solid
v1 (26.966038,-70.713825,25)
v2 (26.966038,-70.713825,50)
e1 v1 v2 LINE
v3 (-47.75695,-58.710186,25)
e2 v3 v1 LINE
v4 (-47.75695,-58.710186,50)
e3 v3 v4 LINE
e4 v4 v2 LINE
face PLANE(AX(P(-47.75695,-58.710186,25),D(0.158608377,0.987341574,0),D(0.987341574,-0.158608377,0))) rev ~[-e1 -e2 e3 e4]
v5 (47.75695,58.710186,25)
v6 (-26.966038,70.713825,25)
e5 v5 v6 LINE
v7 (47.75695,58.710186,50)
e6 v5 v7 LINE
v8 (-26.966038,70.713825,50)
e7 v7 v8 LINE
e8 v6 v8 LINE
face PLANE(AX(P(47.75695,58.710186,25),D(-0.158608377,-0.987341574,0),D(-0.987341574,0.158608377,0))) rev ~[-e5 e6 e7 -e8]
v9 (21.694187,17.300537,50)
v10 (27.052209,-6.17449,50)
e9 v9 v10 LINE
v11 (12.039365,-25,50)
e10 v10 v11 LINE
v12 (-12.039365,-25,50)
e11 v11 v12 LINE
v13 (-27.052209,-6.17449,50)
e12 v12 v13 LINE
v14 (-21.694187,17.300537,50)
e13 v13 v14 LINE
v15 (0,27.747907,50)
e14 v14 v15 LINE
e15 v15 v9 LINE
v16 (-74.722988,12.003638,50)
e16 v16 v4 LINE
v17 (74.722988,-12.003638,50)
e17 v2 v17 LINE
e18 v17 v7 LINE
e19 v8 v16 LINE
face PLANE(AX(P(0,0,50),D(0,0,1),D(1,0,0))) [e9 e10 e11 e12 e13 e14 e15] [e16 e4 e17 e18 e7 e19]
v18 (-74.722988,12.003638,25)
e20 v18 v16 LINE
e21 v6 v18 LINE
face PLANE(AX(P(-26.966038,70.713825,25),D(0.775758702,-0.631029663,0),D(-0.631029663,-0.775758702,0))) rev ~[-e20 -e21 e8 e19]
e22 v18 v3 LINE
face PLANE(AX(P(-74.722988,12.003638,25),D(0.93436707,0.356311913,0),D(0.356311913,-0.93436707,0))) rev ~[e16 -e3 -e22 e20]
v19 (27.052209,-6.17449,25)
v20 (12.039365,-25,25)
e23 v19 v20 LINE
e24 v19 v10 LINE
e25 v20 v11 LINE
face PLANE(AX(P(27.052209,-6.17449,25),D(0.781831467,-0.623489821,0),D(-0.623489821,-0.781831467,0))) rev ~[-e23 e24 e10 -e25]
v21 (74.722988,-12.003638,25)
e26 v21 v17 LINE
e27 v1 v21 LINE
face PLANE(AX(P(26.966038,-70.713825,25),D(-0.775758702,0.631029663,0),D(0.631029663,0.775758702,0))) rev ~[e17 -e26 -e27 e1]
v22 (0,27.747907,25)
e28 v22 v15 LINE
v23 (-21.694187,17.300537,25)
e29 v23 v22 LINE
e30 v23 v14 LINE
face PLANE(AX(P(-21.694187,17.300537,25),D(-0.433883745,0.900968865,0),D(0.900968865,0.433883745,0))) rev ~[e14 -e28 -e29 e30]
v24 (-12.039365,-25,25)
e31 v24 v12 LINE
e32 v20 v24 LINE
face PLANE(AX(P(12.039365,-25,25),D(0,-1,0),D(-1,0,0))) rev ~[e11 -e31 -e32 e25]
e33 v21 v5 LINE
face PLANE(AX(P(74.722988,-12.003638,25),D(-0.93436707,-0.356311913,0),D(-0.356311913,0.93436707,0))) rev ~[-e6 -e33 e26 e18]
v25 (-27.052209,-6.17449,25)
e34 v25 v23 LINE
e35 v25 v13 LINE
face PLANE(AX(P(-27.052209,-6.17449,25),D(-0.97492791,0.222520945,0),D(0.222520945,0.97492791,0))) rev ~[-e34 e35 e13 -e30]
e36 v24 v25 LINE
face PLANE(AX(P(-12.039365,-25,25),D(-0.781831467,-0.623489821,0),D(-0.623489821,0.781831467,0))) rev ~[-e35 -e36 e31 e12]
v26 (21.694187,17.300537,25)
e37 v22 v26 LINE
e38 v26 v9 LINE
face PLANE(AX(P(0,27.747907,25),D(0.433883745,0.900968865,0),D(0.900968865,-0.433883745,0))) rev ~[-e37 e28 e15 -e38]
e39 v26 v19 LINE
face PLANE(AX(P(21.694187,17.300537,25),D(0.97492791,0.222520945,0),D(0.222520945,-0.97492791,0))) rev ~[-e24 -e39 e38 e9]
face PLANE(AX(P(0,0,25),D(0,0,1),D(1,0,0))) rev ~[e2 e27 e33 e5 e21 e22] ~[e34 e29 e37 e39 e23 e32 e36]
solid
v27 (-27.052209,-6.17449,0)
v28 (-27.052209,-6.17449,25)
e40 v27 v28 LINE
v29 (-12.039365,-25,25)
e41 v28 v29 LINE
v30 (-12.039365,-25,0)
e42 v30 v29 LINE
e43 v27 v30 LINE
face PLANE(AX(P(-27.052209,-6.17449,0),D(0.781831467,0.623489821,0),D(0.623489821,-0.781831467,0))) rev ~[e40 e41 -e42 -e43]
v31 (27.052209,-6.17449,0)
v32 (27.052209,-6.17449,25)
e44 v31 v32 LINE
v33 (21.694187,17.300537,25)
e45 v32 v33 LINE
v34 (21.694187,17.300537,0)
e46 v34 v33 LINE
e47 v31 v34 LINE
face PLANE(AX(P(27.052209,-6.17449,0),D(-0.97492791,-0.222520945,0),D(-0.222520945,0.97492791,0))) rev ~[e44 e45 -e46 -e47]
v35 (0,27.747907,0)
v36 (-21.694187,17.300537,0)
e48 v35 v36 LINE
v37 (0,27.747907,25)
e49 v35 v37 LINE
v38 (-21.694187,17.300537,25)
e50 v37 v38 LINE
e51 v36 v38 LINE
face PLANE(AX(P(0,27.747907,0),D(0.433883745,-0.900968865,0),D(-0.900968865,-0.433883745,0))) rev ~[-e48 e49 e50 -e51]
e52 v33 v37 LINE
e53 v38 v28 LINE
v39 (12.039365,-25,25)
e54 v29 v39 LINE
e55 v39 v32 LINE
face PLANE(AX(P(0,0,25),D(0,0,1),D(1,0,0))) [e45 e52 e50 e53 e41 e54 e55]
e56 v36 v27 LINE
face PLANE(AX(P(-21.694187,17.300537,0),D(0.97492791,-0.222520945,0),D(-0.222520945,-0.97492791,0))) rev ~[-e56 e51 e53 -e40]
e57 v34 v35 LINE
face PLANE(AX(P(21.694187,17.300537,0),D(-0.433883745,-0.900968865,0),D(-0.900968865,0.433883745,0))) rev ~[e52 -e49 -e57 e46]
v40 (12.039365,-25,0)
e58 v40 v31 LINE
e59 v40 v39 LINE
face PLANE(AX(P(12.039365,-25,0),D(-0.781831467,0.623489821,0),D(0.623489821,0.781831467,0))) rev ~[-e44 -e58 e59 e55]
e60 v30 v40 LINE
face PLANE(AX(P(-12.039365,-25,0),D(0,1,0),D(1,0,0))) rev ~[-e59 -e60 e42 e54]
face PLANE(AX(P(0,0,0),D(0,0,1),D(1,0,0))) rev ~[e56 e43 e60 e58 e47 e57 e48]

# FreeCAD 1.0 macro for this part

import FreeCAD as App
import Part
import Sketcher
from FreeCAD import Vector
Q = App.Units.Quantity

doc = App.newDocument("Part")
body = doc.addObject("PartDesign::Body", "Body")

# Sketch on XY plane
sketch1 = body.newObject("Sketcher::SketchObject", "Sketch")
sketch1.AttachmentSupport = (doc.getObject("XY_Plane"), [""])
sketch1.MapMode = "FlatFace"
sketch1.addGeometry([
    Part.LineSegment(Vector(-12, -25, 0), Vector(12, -25, 0)),  # 0
    Part.LineSegment(Vector(12, -25, 0), Vector(27, -6, 0)),  # 1
    Part.LineSegment(Vector(27, -6, 0), Vector(22, 17, 0)),  # 2
    Part.LineSegment(Vector(22, 17, 0), Vector(0, 28, 0)),  # 3
    Part.LineSegment(Vector(0, 28, 0), Vector(-22, 17, 0)),  # 4
    Part.LineSegment(Vector(-22, 17, 0), Vector(-27, -6, 0)),  # 5
    Part.LineSegment(Vector(-27, -6, 0), Vector(-12, -25, 0)),  # 6
], False)
sketch1.addConstraint([
    Sketcher.Constraint("Coincident", 0, 2, 1, 1),
    Sketcher.Constraint("Coincident", 1, 2, 2, 1),
    Sketcher.Constraint("Coincident", 2, 2, 3, 1),
    Sketcher.Constraint("Coincident", 3, 2, 4, 1),
    Sketcher.Constraint("Coincident", 4, 2, 5, 1),
    Sketcher.Constraint("Coincident", 5, 2, 6, 1),
    Sketcher.Constraint("Coincident", 6, 2, 0, 1),
    Sketcher.Constraint("Horizontal", 0),
    Sketcher.Constraint("Symmetric", 2, 2, 4, 2, -2),
    Sketcher.Constraint("Symmetric", 1, 2, 5, 2, -2),
    Sketcher.Constraint("PointOnObject", 3, 2, -2),
    Sketcher.Constraint("Equal", 1, 2),
    Sketcher.Constraint("Equal", 2, 3),
    Sketcher.Constraint("Equal", 5, 6),
    Sketcher.Constraint("DistanceY", 0, 2, -1, 1, Q("25 mm")),
    Sketcher.Constraint("DistanceX", 0, 1, 0, 2, Q("24.07873 mm")),
    Sketcher.Constraint("Distance", 1, Q("24.078732 mm")),
    Sketcher.Constraint("DistanceX", -1, 1, 1, 2, Q("27.052209 mm")),
    Sketcher.Constraint("DistanceX", 0, 2, 2, 2, Q("9.654822 mm")),
])
pad1 = body.newObject("PartDesign::Pad", "Pad")
pad1.Profile = sketch1
pad1.Length = 25
body2 = doc.addObject("PartDesign::Body", "Body001")

# Sketch on XY plane
sketch2 = body2.newObject("Sketcher::SketchObject", "Sketch001")
sketch2.AttachmentSupport = (doc.getObject("XY_Plane001"), [""])
sketch2.MapMode = "FlatFace"
sketch2.AttachmentOffset = App.Placement(Vector(0, 0, 25), App.Rotation())
sketch2.addGeometry([
    Part.LineSegment(Vector(-27, 71, 0), Vector(-75, 12, 0)),  # 0
    Part.LineSegment(Vector(-75, 12, 0), Vector(-48, -59, 0)),  # 1
    Part.LineSegment(Vector(-48, -59, 0), Vector(27, -71, 0)),  # 2
    Part.LineSegment(Vector(27, -71, 0), Vector(75, -12, 0)),  # 3
    Part.LineSegment(Vector(75, -12, 0), Vector(48, 59, 0)),  # 4
    Part.LineSegment(Vector(48, 59, 0), Vector(-27, 71, 0)),  # 5
    Part.LineSegment(Vector(12, -25, 0), Vector(-12, -25, 0)),  # 6
    Part.LineSegment(Vector(-12, -25, 0), Vector(-27, -6, 0)),  # 7
    Part.LineSegment(Vector(-27, -6, 0), Vector(-22, 17, 0)),  # 8
    Part.LineSegment(Vector(-22, 17, 0), Vector(0, 28, 0)),  # 9
    Part.LineSegment(Vector(0, 28, 0), Vector(22, 17, 0)),  # 10
    Part.LineSegment(Vector(22, 17, 0), Vector(27, -6, 0)),  # 11
    Part.LineSegment(Vector(27, -6, 0), Vector(12, -25, 0)),  # 12
], False)
sketch2.addConstraint([
    Sketcher.Constraint("Coincident", 0, 2, 1, 1),
    Sketcher.Constraint("Coincident", 1, 2, 2, 1),
    Sketcher.Constraint("Coincident", 2, 2, 3, 1),
    Sketcher.Constraint("Coincident", 3, 2, 4, 1),
    Sketcher.Constraint("Coincident", 4, 2, 5, 1),
    Sketcher.Constraint("Coincident", 5, 2, 0, 1),
    Sketcher.Constraint("Coincident", 6, 2, 7, 1),
    Sketcher.Constraint("Coincident", 7, 2, 8, 1),
    Sketcher.Constraint("Coincident", 8, 2, 9, 1),
    Sketcher.Constraint("Coincident", 9, 2, 10, 1),
    Sketcher.Constraint("Coincident", 10, 2, 11, 1),
    Sketcher.Constraint("Coincident", 11, 2, 12, 1),
    Sketcher.Constraint("Coincident", 12, 2, 6, 1),
    Sketcher.Constraint("Horizontal", 6),
    Sketcher.Constraint("Symmetric", 0, 2, 3, 2, -1, 1),
    Sketcher.Constraint("Symmetric", 1, 2, 4, 2, -1, 1),
    Sketcher.Constraint("Symmetric", 2, 2, 5, 2, -1, 1),
    Sketcher.Constraint("Symmetric", 8, 2, 10, 2, -2),
    Sketcher.Constraint("Symmetric", 7, 2, 11, 2, -2),
    Sketcher.Constraint("PointOnObject", 9, 2, -2),
    Sketcher.Constraint("Equal", 0, 1),
    Sketcher.Constraint("Equal", 1, 2),
    Sketcher.Constraint("Equal", 7, 8),
    Sketcher.Constraint("Equal", 8, 9),
    Sketcher.Constraint("Equal", 11, 12),
    Sketcher.Constraint("DistanceY", 6, 2, -1, 1, Q("25 mm")),
    Sketcher.Constraint("DistanceX", 6, 2, 6, 1, Q("24.07873 mm")),
    Sketcher.Constraint("DistanceX", 1, 2, 4, 2, Q("95.5139 mm")),
    Sketcher.Constraint("DistanceX", 0, 2, 8, 2, Q("53.028801 mm")),
    Sketcher.Constraint("DistanceY", 0, 2, 8, 2, Q("5.296899 mm")),
    Sketcher.Constraint("Distance", 0, Q("75.680991 mm")),
    Sketcher.Constraint("Distance", 7, Q("24.078732 mm")),
    Sketcher.Constraint("DistanceX", 0, 2, -1, 1, Q("74.722988 mm")),
    Sketcher.Constraint("DistanceX", -1, 1, 2, 2, Q("26.966038 mm")),
])
pad2 = body2.newObject("PartDesign::Pad", "Pad001")
pad2.Profile = sketch2
pad2.Length = 25

doc.recompute()
